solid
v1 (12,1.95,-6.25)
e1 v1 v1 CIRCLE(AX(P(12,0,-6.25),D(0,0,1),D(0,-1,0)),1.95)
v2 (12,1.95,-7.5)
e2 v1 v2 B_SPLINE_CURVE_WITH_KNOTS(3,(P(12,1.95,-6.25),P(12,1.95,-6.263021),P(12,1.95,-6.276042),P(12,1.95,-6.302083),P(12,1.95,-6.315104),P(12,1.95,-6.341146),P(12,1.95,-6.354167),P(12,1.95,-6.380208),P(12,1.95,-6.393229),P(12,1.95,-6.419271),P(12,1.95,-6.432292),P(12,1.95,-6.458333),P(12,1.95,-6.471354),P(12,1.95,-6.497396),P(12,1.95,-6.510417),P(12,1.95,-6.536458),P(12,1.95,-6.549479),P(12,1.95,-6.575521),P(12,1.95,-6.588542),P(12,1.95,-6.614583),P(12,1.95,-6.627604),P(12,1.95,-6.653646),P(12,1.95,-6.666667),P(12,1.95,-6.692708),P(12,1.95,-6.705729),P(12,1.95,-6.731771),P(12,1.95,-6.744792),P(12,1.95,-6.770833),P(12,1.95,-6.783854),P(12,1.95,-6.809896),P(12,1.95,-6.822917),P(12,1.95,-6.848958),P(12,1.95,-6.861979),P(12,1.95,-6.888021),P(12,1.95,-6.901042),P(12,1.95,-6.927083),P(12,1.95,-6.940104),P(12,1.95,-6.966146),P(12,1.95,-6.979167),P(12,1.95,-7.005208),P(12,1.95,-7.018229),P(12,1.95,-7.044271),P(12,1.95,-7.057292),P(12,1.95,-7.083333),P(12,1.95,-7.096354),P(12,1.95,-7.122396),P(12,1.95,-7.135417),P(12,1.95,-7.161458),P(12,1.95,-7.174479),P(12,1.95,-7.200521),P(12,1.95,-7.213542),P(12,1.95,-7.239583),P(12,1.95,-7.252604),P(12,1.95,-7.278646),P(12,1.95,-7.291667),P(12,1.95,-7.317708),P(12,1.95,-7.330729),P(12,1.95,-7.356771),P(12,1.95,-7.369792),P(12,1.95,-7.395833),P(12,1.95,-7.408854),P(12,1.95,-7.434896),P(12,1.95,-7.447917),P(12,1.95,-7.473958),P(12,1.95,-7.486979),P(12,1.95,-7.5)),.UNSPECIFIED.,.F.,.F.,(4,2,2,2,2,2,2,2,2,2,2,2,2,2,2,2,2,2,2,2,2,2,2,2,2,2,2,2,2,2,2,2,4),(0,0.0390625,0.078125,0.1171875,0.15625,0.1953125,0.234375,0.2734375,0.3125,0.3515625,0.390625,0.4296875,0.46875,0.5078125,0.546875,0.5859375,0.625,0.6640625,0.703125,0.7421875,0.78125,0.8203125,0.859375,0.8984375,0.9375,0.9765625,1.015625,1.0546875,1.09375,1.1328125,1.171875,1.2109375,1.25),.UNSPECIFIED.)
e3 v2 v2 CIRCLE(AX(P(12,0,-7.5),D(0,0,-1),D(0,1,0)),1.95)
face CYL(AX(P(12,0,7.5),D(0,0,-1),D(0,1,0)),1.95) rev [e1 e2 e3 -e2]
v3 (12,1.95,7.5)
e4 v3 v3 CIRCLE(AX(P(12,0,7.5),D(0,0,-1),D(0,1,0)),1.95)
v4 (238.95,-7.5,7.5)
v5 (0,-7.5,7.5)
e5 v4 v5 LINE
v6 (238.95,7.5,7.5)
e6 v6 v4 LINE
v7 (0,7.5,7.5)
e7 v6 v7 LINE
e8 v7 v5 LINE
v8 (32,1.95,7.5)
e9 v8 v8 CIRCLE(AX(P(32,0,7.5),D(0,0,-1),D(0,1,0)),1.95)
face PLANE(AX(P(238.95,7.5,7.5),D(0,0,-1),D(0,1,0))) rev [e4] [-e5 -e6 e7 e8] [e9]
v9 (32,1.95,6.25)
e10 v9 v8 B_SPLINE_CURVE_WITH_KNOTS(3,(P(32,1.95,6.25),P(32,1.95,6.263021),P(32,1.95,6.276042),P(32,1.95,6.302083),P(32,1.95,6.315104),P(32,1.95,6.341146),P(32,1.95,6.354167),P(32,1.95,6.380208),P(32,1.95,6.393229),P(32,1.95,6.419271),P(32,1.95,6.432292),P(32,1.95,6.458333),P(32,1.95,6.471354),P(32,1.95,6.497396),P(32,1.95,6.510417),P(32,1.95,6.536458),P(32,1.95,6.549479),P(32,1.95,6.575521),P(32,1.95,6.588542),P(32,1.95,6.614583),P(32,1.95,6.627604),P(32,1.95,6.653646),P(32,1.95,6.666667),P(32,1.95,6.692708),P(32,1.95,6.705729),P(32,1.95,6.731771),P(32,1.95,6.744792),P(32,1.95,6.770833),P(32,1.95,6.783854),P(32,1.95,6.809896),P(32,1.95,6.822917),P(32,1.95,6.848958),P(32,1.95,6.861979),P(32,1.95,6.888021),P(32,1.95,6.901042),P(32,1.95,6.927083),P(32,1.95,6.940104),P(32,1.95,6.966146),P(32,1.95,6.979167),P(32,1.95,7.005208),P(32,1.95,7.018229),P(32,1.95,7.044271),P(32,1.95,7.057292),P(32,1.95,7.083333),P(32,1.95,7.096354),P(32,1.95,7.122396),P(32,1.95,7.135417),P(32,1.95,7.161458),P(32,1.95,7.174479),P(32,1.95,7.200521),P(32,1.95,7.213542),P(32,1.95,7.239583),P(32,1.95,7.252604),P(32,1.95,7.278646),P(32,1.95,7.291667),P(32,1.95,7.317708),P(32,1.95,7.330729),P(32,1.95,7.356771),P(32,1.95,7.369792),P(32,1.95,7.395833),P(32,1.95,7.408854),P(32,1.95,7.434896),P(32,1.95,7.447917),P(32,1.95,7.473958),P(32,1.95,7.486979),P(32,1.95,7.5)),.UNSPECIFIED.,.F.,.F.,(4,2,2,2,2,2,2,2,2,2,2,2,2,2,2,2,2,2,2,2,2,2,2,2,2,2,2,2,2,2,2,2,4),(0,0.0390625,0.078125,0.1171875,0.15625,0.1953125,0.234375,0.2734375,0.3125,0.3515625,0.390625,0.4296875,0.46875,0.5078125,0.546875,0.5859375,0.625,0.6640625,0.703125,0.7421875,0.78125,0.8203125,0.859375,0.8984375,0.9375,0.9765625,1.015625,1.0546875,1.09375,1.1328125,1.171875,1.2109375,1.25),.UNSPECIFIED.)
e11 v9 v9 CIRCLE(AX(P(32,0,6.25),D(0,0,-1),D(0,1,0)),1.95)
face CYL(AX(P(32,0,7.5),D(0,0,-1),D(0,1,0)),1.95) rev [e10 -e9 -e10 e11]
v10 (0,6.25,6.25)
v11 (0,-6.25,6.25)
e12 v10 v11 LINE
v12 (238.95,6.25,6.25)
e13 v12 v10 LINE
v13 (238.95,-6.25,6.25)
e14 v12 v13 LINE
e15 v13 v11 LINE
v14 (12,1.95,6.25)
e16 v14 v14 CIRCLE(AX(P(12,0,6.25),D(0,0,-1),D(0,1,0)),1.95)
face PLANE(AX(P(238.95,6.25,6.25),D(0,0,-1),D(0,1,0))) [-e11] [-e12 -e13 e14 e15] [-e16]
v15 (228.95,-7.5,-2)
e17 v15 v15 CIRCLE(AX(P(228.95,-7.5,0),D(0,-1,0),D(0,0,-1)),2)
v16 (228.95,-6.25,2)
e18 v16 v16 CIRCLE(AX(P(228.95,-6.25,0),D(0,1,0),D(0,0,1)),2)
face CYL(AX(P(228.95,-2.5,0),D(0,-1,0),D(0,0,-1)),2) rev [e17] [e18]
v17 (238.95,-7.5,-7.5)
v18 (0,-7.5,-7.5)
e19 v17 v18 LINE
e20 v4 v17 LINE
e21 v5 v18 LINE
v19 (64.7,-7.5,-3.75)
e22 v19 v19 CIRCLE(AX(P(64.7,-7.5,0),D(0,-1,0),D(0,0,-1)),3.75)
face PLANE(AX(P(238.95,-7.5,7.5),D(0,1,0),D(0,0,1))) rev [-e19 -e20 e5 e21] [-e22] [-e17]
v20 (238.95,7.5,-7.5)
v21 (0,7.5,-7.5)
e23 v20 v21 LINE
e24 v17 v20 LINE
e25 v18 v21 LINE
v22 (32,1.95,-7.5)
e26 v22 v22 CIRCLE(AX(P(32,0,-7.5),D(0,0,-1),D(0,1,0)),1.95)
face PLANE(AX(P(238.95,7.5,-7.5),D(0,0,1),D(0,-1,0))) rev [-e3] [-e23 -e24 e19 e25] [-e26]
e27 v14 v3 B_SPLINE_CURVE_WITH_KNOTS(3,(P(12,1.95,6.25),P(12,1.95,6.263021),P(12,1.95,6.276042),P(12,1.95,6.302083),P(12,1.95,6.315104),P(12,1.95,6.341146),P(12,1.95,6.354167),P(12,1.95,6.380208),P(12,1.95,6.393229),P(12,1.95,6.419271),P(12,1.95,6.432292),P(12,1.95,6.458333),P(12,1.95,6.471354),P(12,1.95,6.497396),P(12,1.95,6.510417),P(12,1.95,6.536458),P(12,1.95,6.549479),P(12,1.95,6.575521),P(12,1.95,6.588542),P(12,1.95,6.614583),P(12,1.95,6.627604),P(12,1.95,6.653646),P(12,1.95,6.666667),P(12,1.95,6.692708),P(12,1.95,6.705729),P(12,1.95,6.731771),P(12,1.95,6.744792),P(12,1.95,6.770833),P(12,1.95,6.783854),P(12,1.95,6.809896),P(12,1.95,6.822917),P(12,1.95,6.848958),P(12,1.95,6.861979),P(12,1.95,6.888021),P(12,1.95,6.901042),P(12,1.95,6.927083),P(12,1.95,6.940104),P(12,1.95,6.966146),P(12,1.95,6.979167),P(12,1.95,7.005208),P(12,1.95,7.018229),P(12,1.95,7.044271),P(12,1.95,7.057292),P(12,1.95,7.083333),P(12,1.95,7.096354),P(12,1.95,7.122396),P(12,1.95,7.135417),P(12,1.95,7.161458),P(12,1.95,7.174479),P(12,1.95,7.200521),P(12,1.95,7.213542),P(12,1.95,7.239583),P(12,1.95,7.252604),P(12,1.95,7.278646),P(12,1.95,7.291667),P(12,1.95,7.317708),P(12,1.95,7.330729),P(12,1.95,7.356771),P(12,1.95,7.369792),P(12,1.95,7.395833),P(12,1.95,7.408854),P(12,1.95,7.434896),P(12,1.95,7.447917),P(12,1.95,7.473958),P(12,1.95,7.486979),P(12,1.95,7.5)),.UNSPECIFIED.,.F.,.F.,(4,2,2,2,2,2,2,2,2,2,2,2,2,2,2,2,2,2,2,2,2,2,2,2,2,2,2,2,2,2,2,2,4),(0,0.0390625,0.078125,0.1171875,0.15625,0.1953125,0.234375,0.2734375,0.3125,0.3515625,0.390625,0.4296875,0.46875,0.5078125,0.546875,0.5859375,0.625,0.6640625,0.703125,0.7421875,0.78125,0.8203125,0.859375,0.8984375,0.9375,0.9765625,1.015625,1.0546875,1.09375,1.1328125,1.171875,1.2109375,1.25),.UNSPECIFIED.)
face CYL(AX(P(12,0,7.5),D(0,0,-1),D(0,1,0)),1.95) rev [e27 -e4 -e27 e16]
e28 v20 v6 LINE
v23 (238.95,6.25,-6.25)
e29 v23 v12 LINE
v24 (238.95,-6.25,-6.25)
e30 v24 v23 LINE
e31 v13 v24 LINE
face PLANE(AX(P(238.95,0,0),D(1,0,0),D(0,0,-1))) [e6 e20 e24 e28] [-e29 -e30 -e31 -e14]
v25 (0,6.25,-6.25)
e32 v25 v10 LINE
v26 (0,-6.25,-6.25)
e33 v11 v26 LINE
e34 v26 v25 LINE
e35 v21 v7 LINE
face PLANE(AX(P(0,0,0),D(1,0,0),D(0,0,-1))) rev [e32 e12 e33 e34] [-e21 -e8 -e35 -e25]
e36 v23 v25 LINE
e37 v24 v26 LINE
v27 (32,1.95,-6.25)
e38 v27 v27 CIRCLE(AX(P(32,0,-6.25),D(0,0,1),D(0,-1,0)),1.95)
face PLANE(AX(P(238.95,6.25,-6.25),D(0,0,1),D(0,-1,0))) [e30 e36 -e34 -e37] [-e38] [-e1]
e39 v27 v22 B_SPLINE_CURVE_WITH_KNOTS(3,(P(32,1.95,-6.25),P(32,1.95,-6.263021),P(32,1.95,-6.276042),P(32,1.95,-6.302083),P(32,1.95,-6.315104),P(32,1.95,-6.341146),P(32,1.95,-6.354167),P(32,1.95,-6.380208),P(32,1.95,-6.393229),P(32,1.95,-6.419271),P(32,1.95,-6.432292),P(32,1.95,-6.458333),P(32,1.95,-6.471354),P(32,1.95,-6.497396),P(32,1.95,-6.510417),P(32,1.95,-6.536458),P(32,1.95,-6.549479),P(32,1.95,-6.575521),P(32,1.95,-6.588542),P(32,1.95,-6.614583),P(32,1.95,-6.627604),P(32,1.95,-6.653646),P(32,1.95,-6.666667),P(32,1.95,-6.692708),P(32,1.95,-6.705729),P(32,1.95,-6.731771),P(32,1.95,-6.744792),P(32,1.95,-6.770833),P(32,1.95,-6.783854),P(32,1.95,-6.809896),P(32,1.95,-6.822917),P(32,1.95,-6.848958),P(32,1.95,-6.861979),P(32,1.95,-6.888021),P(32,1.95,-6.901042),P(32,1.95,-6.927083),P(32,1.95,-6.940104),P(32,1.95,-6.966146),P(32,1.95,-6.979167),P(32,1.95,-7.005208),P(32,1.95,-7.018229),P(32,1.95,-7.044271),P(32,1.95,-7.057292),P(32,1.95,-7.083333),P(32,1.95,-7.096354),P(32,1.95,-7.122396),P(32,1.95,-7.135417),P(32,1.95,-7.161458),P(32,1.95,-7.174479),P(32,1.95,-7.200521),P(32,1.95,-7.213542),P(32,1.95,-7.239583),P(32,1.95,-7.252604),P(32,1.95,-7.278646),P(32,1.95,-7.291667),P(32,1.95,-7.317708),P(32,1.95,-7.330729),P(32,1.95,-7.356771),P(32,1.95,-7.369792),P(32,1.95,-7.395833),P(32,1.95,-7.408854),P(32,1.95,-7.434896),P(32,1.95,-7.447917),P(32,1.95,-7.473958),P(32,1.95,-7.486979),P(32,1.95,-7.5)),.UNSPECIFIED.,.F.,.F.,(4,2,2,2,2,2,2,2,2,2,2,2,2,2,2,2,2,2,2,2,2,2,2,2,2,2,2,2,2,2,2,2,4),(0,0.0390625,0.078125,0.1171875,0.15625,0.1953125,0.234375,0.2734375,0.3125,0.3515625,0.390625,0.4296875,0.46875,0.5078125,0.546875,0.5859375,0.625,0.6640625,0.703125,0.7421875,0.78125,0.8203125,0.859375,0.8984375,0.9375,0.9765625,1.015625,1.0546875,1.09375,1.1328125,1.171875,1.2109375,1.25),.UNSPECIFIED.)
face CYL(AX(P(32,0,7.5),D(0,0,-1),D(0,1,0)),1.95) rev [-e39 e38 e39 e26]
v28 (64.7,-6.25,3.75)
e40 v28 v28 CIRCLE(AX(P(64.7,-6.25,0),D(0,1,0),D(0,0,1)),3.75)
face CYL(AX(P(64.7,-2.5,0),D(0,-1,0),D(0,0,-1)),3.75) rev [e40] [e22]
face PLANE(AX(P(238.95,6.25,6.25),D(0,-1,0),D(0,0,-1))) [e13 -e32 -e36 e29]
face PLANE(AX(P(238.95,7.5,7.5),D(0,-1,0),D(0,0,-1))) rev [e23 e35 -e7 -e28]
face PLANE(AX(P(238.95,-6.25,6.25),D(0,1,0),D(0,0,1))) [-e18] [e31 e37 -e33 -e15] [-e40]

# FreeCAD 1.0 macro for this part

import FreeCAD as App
import Part
import Sketcher

V = App.Vector
Q = App.Units.Quantity


def add_polygon(sketch, points):
    """Adds a closed chain of lines whose ends are joined by coincident constraints."""
    first, n = sketch.GeometryCount, len(points)
    for a, b in zip(points, points[1:] + points[:1]):
        sketch.addGeometry(Part.LineSegment(App.Vector(*a, 0), App.Vector(*b, 0)), False)
    for i in range(n):
        sketch.addConstraint(Sketcher.Constraint("Coincident", first + i, 2, first + (i + 1) % n, 1))

doc = App.newDocument("Part")
body = doc.addObject("PartDesign::Body", "Body")

# Sketch on YZ plane
sketch1 = body.newObject("Sketcher::SketchObject", "Sketch")
sketch1.AttachmentSupport = (doc.getObject("YZ_Plane"), [""])
sketch1.MapMode = "FlatFace"
add_polygon(sketch1, [(7.5, 7.5), (-7.5, 7.5), (-7.5, -7.5), (7.5, -7.5)])  # lines 0-3
add_polygon(sketch1, [(-6.25, -6.25), (-6.25, 6.25), (6.25, 6.25), (6.25, -6.25)])  # lines 4-7
sketch1.addConstraint(Sketcher.Constraint("Horizontal", 0))
sketch1.addConstraint(Sketcher.Constraint("Vertical", 1))
sketch1.addConstraint(Sketcher.Constraint("Horizontal", 2))
sketch1.addConstraint(Sketcher.Constraint("Vertical", 3))
sketch1.addConstraint(Sketcher.Constraint("Vertical", 4))
sketch1.addConstraint(Sketcher.Constraint("Horizontal", 5))
sketch1.addConstraint(Sketcher.Constraint("Vertical", 6))
sketch1.addConstraint(Sketcher.Constraint("Horizontal", 7))
sketch1.addConstraint(Sketcher.Constraint("Symmetric", 0, 2, 2, 2, -1, 1))
sketch1.addConstraint(Sketcher.Constraint("Symmetric", 4, 2, 6, 2, -1, 1))
sketch1.addConstraint(Sketcher.Constraint("Equal", 2, 1))
sketch1.addConstraint(Sketcher.Constraint("Equal", 7, 4))
sketch1.addConstraint(Sketcher.Constraint("DistanceX", 0, 2, 0, 1, Q("15 mm")))
sketch1.addConstraint(Sketcher.Constraint("DistanceX", 5, 1, 5, 2, Q("12.5 mm")))
pad1 = body.newObject("PartDesign::Pad", "Pad")
pad1.Profile = sketch1
pad1.Length = 238.95

# Sketch on XY plane
sketch2 = body.newObject("Sketcher::SketchObject", "Sketch001")
sketch2.AttachmentSupport = (doc.getObject("XY_Plane"), [""])
sketch2.MapMode = "FlatFace"
sketch2.AttachmentOffset = App.Placement(V(0, 0, -7.5), App.Rotation())
sketch2.addGeometry(Part.Circle(V(12, 0, 0), V(0, 0, 1), 1.95), False)
sketch2.addGeometry(Part.Circle(V(32, 0, 0), V(0, 0, 1), 1.95), False)
sketch2.addConstraint(Sketcher.Constraint("Equal", 0, 1))
sketch2.addConstraint(Sketcher.Constraint("PointOnObject", 0, 3, -1))
sketch2.addConstraint(Sketcher.Constraint("PointOnObject", 1, 3, -1))
sketch2.addConstraint(Sketcher.Constraint("Diameter", 0, Q("3.9 mm")))
sketch2.addConstraint(Sketcher.Constraint("DistanceX", -1, 1, 0, 3, Q("12 mm")))
sketch2.addConstraint(Sketcher.Constraint("DistanceX", -1, 1, 1, 3, Q("32 mm")))
pocket1 = body.newObject("PartDesign::Pocket", "Pocket")
pocket1.Profile = sketch2
pocket1.Type = "ThroughAll"
pocket1.Reversed = True

# Sketch on XZ plane
sketch3 = body.newObject("Sketcher::SketchObject", "Sketch002")
sketch3.AttachmentSupport = (doc.getObject("XZ_Plane"), [""])
sketch3.MapMode = "FlatFace"
sketch3.AttachmentOffset = App.Placement(V(0, 0, 7.5), App.Rotation())
sketch3.addGeometry(Part.Circle(V(64.7, 0, 0), V(0, 0, 1), 3.75), False)
sketch3.addGeometry(Part.Circle(V(228.95, 0, 0), V(0, 0, 1), 2), False)
sketch3.addConstraint(Sketcher.Constraint("PointOnObject", 0, 3, -1))
sketch3.addConstraint(Sketcher.Constraint("PointOnObject", 1, 3, -1))
sketch3.addConstraint(Sketcher.Constraint("Diameter", 1, Q("4 mm")))
sketch3.addConstraint(Sketcher.Constraint("Diameter", 0, Q("7.5 mm")))
sketch3.addConstraint(Sketcher.Constraint("DistanceX", -1, 1, 0, 3, Q("64.7 mm")))
sketch3.addConstraint(Sketcher.Constraint("DistanceX", -1, 1, 1, 3, Q("228.95 mm")))
pocket2 = body.newObject("PartDesign::Pocket", "Pocket001")
pocket2.Profile = sketch3
pocket2.Length = 5

doc.recompute()
